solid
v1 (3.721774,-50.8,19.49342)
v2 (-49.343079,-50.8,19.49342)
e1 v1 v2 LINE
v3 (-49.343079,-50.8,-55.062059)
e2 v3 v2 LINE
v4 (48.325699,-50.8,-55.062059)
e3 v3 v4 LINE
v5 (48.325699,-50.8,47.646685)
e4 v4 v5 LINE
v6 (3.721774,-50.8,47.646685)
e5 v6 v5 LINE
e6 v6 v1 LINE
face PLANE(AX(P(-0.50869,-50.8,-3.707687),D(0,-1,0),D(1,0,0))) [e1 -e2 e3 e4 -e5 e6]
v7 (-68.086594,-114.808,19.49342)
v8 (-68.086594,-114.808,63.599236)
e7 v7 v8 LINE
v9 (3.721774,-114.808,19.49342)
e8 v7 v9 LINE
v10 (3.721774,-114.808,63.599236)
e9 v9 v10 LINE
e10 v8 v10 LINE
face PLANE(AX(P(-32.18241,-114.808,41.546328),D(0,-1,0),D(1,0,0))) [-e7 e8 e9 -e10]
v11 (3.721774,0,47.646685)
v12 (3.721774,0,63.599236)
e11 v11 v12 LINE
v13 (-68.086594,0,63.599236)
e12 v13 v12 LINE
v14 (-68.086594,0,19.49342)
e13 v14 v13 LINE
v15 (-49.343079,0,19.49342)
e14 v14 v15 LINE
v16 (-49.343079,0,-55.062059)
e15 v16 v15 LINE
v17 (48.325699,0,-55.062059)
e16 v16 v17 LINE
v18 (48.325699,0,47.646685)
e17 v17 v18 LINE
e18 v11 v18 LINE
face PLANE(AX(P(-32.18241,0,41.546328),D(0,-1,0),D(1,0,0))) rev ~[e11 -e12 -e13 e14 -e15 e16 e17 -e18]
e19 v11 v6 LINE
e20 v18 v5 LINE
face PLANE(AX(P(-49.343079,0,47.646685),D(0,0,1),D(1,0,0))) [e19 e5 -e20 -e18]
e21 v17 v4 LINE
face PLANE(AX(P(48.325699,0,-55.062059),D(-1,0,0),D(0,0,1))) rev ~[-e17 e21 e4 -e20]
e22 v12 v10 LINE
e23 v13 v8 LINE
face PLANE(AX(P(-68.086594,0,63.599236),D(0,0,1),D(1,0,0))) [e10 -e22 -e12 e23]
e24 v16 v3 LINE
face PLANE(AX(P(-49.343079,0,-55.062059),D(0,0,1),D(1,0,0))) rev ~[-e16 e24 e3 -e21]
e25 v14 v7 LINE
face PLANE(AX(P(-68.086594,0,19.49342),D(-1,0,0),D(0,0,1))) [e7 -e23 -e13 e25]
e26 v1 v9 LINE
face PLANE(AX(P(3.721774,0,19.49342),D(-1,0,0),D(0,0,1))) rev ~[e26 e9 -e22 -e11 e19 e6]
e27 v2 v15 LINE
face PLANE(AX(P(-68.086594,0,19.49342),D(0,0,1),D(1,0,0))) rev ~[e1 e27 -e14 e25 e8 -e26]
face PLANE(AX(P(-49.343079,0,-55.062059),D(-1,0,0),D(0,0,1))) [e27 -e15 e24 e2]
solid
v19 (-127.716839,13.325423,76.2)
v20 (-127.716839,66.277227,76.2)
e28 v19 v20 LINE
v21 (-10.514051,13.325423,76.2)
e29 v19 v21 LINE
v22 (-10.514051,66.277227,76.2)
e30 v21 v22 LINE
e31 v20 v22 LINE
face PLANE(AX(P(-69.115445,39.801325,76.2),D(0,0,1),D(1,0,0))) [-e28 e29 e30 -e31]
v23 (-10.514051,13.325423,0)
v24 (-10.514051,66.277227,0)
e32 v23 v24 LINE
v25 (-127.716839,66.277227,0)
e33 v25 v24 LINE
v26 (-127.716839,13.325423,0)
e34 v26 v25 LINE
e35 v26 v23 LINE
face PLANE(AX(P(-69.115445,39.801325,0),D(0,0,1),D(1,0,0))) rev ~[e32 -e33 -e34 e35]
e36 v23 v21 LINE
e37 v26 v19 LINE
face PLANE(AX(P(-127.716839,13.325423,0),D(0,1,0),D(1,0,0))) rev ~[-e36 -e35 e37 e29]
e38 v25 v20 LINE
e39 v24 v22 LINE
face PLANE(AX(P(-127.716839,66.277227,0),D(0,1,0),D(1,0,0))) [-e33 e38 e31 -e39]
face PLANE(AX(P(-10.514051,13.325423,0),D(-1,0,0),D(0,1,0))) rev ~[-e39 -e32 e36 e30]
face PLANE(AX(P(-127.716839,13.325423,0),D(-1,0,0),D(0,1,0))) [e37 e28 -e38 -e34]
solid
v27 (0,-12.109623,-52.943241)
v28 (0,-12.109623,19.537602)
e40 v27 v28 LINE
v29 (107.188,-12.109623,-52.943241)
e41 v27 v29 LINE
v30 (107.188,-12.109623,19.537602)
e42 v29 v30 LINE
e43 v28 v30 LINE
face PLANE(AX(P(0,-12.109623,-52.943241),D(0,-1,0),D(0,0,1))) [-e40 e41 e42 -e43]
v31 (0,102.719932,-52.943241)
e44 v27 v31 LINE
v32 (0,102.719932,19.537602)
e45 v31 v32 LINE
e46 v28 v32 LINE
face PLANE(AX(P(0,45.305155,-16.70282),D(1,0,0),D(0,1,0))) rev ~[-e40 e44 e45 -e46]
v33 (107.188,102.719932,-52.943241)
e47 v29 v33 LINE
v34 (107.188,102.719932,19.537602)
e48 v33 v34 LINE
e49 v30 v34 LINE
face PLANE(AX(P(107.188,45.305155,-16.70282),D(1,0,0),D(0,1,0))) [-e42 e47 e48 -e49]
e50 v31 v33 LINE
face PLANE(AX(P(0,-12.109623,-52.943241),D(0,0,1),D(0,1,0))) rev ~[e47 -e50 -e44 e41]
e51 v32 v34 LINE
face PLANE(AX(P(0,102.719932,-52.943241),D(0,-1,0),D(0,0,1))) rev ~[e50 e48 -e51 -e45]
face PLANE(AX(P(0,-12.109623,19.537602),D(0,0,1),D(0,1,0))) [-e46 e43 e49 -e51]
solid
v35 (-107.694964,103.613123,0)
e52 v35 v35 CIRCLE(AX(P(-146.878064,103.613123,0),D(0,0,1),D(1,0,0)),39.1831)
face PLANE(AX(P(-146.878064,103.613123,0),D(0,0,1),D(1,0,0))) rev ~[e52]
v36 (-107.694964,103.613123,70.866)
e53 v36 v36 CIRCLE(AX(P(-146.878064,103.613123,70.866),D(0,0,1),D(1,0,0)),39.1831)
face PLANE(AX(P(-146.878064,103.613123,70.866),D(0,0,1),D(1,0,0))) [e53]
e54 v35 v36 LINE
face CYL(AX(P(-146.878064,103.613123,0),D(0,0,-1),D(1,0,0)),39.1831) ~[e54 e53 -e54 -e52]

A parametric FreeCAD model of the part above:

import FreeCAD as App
import Part
import Sketcher
Q = App.Units.Quantity


def add_polygon(sketch, points):
    """Adds a closed chain of lines whose ends are joined by coincident constraints."""
    first, n = sketch.GeometryCount, len(points)
    for a, b in zip(points, points[1:] + points[:1]):
        sketch.addGeometry(Part.LineSegment(App.Vector(*a, 0), App.Vector(*b, 0)), False)
    for i in range(n):
        sketch.addConstraint(Sketcher.Constraint("Coincident", first + i, 2, first + (i + 1) % n, 1))

doc = App.newDocument("Part")
body = doc.addObject("PartDesign::Body", "Body")

# Sketch on XZ plane
sketch1 = body.newObject("Sketcher::SketchObject", "Sketch")
sketch1.AttachmentSupport = (doc.getObject("XZ_Plane"), [""])
sketch1.MapMode = "FlatFace"
add_polygon(sketch1, [(-49, 48), (-49, -55), (48, -55), (48, 48)])  # lines 0-3
sketch1.addConstraint([
    Sketcher.Constraint("Vertical", 0),
    Sketcher.Constraint("Horizontal", 1),
    Sketcher.Constraint("Vertical", 2),
    Sketcher.Constraint("Horizontal", 3),
    Sketcher.Constraint("DistanceX", 1, 1, 1, 2, 97.668778),
    Sketcher.Constraint("DistanceX", -1, 1, 1, 2, 48.325699),
    Sketcher.Constraint("DistanceY", 0, 2, 0, 1, 102.708745),
    Sketcher.Constraint("DistanceY", 0, 2, -1, 1, 55.062059),
])
pad1 = body.newObject("PartDesign::Pad", "Pad")
pad1.Profile = sketch1
pad1.Length = Q("2 in")

# Sketch on XZ plane
sketch2 = body.newObject("Sketcher::SketchObject", "Sketch001")
sketch2.AttachmentSupport = (doc.getObject("XZ_Plane"), [""])
sketch2.MapMode = "FlatFace"
add_polygon(sketch2, [(-68, 64), (-68, 19), (4, 19), (4, 64)])  # lines 0-3
sketch2.addConstraint([
    Sketcher.Constraint("Vertical", 0),
    Sketcher.Constraint("Horizontal", 1),
    Sketcher.Constraint("Vertical", 2),
    Sketcher.Constraint("Horizontal", 3),
    Sketcher.Constraint("DistanceX", 1, 1, 1, 2, 71.808368),
    Sketcher.Constraint("DistanceY", 0, 2, 0, 1, 44.105816),
    Sketcher.Constraint("DistanceY", -1, 1, 0, 2, 19.49342),
    Sketcher.Constraint("DistanceX", 0, 2, -1, 1, 68.086594),
])
pad2 = body.newObject("PartDesign::Pad", "Pad001")
pad2.Profile = sketch2
pad2.Length = Q("4.52 in")
body2 = doc.addObject("PartDesign::Body", "Body001")

# Sketch on XY plane
sketch3 = body2.newObject("Sketcher::SketchObject", "Sketch002")
sketch3.AttachmentSupport = (doc.getObject("XY_Plane001"), [""])
sketch3.MapMode = "FlatFace"
add_polygon(sketch3, [(-128, 66), (-128, 13), (-11, 13), (-11, 66)])  # lines 0-3
sketch3.addConstraint([
    Sketcher.Constraint("Vertical", 0),
    Sketcher.Constraint("Horizontal", 1),
    Sketcher.Constraint("Vertical", 2),
    Sketcher.Constraint("Horizontal", 3),
    Sketcher.Constraint("DistanceX", 1, 1, 1, 2, 117.202788),
    Sketcher.Constraint("DistanceY", 0, 2, 0, 1, 52.951805),
    Sketcher.Constraint("DistanceX", 0, 2, -1, 1, 127.716839),
    Sketcher.Constraint("DistanceY", -1, 1, 0, 2, 13.325423),
])
pad3 = body2.newObject("PartDesign::Pad", "Pad002")
pad3.Profile = sketch3
pad3.Length = Q("3 in")
body3 = doc.addObject("PartDesign::Body", "Body002")

# Sketch on YZ plane
sketch4 = body3.newObject("Sketcher::SketchObject", "Sketch003")
sketch4.AttachmentSupport = (doc.getObject("YZ_Plane002"), [""])
sketch4.MapMode = "FlatFace"
add_polygon(sketch4, [(-12, 20), (-12, -53), (103, -53), (103, 20)])  # lines 0-3
sketch4.addConstraint([
    Sketcher.Constraint("Vertical", 0),
    Sketcher.Constraint("Horizontal", 1),
    Sketcher.Constraint("Vertical", 2),
    Sketcher.Constraint("Horizontal", 3),
    Sketcher.Constraint("DistanceY", -1, 1, 2, 2, 19.537602),
    Sketcher.Constraint("DistanceX", 1, 1, 1, 2, 114.829555),
    Sketcher.Constraint("DistanceY", 0, 2, 0, 1, 72.480843),
    Sketcher.Constraint("DistanceX", 0, 2, -1, 1, 12.109623),
])
pad4 = body3.newObject("PartDesign::Pad", "Pad003")
pad4.Profile = sketch4
pad4.Length = Q("4.22 in")
body4 = doc.addObject("PartDesign::Body", "Body003")

# Sketch on XY plane
sketch5 = body4.newObject("Sketcher::SketchObject", "Sketch004")
sketch5.AttachmentSupport = (doc.getObject("XY_Plane003"), [""])
sketch5.MapMode = "FlatFace"
sketch5.addGeometry(Part.Circle(App.Vector(-147, 104, 0), App.Vector(0, 0, 1), 39), False)
sketch5.addConstraint([
    Sketcher.Constraint("Diameter", 0, 78.3662),
    Sketcher.Constraint("DistanceX", 0, 3, -1, 1, 146.878064),
    Sketcher.Constraint("DistanceY", -1, 1, 0, 3, 103.613123),
])
pad5 = body4.newObject("PartDesign::Pad", "Pad004")
pad5.Profile = sketch5
pad5.Length = Q("2.79 in")

doc.recompute()
